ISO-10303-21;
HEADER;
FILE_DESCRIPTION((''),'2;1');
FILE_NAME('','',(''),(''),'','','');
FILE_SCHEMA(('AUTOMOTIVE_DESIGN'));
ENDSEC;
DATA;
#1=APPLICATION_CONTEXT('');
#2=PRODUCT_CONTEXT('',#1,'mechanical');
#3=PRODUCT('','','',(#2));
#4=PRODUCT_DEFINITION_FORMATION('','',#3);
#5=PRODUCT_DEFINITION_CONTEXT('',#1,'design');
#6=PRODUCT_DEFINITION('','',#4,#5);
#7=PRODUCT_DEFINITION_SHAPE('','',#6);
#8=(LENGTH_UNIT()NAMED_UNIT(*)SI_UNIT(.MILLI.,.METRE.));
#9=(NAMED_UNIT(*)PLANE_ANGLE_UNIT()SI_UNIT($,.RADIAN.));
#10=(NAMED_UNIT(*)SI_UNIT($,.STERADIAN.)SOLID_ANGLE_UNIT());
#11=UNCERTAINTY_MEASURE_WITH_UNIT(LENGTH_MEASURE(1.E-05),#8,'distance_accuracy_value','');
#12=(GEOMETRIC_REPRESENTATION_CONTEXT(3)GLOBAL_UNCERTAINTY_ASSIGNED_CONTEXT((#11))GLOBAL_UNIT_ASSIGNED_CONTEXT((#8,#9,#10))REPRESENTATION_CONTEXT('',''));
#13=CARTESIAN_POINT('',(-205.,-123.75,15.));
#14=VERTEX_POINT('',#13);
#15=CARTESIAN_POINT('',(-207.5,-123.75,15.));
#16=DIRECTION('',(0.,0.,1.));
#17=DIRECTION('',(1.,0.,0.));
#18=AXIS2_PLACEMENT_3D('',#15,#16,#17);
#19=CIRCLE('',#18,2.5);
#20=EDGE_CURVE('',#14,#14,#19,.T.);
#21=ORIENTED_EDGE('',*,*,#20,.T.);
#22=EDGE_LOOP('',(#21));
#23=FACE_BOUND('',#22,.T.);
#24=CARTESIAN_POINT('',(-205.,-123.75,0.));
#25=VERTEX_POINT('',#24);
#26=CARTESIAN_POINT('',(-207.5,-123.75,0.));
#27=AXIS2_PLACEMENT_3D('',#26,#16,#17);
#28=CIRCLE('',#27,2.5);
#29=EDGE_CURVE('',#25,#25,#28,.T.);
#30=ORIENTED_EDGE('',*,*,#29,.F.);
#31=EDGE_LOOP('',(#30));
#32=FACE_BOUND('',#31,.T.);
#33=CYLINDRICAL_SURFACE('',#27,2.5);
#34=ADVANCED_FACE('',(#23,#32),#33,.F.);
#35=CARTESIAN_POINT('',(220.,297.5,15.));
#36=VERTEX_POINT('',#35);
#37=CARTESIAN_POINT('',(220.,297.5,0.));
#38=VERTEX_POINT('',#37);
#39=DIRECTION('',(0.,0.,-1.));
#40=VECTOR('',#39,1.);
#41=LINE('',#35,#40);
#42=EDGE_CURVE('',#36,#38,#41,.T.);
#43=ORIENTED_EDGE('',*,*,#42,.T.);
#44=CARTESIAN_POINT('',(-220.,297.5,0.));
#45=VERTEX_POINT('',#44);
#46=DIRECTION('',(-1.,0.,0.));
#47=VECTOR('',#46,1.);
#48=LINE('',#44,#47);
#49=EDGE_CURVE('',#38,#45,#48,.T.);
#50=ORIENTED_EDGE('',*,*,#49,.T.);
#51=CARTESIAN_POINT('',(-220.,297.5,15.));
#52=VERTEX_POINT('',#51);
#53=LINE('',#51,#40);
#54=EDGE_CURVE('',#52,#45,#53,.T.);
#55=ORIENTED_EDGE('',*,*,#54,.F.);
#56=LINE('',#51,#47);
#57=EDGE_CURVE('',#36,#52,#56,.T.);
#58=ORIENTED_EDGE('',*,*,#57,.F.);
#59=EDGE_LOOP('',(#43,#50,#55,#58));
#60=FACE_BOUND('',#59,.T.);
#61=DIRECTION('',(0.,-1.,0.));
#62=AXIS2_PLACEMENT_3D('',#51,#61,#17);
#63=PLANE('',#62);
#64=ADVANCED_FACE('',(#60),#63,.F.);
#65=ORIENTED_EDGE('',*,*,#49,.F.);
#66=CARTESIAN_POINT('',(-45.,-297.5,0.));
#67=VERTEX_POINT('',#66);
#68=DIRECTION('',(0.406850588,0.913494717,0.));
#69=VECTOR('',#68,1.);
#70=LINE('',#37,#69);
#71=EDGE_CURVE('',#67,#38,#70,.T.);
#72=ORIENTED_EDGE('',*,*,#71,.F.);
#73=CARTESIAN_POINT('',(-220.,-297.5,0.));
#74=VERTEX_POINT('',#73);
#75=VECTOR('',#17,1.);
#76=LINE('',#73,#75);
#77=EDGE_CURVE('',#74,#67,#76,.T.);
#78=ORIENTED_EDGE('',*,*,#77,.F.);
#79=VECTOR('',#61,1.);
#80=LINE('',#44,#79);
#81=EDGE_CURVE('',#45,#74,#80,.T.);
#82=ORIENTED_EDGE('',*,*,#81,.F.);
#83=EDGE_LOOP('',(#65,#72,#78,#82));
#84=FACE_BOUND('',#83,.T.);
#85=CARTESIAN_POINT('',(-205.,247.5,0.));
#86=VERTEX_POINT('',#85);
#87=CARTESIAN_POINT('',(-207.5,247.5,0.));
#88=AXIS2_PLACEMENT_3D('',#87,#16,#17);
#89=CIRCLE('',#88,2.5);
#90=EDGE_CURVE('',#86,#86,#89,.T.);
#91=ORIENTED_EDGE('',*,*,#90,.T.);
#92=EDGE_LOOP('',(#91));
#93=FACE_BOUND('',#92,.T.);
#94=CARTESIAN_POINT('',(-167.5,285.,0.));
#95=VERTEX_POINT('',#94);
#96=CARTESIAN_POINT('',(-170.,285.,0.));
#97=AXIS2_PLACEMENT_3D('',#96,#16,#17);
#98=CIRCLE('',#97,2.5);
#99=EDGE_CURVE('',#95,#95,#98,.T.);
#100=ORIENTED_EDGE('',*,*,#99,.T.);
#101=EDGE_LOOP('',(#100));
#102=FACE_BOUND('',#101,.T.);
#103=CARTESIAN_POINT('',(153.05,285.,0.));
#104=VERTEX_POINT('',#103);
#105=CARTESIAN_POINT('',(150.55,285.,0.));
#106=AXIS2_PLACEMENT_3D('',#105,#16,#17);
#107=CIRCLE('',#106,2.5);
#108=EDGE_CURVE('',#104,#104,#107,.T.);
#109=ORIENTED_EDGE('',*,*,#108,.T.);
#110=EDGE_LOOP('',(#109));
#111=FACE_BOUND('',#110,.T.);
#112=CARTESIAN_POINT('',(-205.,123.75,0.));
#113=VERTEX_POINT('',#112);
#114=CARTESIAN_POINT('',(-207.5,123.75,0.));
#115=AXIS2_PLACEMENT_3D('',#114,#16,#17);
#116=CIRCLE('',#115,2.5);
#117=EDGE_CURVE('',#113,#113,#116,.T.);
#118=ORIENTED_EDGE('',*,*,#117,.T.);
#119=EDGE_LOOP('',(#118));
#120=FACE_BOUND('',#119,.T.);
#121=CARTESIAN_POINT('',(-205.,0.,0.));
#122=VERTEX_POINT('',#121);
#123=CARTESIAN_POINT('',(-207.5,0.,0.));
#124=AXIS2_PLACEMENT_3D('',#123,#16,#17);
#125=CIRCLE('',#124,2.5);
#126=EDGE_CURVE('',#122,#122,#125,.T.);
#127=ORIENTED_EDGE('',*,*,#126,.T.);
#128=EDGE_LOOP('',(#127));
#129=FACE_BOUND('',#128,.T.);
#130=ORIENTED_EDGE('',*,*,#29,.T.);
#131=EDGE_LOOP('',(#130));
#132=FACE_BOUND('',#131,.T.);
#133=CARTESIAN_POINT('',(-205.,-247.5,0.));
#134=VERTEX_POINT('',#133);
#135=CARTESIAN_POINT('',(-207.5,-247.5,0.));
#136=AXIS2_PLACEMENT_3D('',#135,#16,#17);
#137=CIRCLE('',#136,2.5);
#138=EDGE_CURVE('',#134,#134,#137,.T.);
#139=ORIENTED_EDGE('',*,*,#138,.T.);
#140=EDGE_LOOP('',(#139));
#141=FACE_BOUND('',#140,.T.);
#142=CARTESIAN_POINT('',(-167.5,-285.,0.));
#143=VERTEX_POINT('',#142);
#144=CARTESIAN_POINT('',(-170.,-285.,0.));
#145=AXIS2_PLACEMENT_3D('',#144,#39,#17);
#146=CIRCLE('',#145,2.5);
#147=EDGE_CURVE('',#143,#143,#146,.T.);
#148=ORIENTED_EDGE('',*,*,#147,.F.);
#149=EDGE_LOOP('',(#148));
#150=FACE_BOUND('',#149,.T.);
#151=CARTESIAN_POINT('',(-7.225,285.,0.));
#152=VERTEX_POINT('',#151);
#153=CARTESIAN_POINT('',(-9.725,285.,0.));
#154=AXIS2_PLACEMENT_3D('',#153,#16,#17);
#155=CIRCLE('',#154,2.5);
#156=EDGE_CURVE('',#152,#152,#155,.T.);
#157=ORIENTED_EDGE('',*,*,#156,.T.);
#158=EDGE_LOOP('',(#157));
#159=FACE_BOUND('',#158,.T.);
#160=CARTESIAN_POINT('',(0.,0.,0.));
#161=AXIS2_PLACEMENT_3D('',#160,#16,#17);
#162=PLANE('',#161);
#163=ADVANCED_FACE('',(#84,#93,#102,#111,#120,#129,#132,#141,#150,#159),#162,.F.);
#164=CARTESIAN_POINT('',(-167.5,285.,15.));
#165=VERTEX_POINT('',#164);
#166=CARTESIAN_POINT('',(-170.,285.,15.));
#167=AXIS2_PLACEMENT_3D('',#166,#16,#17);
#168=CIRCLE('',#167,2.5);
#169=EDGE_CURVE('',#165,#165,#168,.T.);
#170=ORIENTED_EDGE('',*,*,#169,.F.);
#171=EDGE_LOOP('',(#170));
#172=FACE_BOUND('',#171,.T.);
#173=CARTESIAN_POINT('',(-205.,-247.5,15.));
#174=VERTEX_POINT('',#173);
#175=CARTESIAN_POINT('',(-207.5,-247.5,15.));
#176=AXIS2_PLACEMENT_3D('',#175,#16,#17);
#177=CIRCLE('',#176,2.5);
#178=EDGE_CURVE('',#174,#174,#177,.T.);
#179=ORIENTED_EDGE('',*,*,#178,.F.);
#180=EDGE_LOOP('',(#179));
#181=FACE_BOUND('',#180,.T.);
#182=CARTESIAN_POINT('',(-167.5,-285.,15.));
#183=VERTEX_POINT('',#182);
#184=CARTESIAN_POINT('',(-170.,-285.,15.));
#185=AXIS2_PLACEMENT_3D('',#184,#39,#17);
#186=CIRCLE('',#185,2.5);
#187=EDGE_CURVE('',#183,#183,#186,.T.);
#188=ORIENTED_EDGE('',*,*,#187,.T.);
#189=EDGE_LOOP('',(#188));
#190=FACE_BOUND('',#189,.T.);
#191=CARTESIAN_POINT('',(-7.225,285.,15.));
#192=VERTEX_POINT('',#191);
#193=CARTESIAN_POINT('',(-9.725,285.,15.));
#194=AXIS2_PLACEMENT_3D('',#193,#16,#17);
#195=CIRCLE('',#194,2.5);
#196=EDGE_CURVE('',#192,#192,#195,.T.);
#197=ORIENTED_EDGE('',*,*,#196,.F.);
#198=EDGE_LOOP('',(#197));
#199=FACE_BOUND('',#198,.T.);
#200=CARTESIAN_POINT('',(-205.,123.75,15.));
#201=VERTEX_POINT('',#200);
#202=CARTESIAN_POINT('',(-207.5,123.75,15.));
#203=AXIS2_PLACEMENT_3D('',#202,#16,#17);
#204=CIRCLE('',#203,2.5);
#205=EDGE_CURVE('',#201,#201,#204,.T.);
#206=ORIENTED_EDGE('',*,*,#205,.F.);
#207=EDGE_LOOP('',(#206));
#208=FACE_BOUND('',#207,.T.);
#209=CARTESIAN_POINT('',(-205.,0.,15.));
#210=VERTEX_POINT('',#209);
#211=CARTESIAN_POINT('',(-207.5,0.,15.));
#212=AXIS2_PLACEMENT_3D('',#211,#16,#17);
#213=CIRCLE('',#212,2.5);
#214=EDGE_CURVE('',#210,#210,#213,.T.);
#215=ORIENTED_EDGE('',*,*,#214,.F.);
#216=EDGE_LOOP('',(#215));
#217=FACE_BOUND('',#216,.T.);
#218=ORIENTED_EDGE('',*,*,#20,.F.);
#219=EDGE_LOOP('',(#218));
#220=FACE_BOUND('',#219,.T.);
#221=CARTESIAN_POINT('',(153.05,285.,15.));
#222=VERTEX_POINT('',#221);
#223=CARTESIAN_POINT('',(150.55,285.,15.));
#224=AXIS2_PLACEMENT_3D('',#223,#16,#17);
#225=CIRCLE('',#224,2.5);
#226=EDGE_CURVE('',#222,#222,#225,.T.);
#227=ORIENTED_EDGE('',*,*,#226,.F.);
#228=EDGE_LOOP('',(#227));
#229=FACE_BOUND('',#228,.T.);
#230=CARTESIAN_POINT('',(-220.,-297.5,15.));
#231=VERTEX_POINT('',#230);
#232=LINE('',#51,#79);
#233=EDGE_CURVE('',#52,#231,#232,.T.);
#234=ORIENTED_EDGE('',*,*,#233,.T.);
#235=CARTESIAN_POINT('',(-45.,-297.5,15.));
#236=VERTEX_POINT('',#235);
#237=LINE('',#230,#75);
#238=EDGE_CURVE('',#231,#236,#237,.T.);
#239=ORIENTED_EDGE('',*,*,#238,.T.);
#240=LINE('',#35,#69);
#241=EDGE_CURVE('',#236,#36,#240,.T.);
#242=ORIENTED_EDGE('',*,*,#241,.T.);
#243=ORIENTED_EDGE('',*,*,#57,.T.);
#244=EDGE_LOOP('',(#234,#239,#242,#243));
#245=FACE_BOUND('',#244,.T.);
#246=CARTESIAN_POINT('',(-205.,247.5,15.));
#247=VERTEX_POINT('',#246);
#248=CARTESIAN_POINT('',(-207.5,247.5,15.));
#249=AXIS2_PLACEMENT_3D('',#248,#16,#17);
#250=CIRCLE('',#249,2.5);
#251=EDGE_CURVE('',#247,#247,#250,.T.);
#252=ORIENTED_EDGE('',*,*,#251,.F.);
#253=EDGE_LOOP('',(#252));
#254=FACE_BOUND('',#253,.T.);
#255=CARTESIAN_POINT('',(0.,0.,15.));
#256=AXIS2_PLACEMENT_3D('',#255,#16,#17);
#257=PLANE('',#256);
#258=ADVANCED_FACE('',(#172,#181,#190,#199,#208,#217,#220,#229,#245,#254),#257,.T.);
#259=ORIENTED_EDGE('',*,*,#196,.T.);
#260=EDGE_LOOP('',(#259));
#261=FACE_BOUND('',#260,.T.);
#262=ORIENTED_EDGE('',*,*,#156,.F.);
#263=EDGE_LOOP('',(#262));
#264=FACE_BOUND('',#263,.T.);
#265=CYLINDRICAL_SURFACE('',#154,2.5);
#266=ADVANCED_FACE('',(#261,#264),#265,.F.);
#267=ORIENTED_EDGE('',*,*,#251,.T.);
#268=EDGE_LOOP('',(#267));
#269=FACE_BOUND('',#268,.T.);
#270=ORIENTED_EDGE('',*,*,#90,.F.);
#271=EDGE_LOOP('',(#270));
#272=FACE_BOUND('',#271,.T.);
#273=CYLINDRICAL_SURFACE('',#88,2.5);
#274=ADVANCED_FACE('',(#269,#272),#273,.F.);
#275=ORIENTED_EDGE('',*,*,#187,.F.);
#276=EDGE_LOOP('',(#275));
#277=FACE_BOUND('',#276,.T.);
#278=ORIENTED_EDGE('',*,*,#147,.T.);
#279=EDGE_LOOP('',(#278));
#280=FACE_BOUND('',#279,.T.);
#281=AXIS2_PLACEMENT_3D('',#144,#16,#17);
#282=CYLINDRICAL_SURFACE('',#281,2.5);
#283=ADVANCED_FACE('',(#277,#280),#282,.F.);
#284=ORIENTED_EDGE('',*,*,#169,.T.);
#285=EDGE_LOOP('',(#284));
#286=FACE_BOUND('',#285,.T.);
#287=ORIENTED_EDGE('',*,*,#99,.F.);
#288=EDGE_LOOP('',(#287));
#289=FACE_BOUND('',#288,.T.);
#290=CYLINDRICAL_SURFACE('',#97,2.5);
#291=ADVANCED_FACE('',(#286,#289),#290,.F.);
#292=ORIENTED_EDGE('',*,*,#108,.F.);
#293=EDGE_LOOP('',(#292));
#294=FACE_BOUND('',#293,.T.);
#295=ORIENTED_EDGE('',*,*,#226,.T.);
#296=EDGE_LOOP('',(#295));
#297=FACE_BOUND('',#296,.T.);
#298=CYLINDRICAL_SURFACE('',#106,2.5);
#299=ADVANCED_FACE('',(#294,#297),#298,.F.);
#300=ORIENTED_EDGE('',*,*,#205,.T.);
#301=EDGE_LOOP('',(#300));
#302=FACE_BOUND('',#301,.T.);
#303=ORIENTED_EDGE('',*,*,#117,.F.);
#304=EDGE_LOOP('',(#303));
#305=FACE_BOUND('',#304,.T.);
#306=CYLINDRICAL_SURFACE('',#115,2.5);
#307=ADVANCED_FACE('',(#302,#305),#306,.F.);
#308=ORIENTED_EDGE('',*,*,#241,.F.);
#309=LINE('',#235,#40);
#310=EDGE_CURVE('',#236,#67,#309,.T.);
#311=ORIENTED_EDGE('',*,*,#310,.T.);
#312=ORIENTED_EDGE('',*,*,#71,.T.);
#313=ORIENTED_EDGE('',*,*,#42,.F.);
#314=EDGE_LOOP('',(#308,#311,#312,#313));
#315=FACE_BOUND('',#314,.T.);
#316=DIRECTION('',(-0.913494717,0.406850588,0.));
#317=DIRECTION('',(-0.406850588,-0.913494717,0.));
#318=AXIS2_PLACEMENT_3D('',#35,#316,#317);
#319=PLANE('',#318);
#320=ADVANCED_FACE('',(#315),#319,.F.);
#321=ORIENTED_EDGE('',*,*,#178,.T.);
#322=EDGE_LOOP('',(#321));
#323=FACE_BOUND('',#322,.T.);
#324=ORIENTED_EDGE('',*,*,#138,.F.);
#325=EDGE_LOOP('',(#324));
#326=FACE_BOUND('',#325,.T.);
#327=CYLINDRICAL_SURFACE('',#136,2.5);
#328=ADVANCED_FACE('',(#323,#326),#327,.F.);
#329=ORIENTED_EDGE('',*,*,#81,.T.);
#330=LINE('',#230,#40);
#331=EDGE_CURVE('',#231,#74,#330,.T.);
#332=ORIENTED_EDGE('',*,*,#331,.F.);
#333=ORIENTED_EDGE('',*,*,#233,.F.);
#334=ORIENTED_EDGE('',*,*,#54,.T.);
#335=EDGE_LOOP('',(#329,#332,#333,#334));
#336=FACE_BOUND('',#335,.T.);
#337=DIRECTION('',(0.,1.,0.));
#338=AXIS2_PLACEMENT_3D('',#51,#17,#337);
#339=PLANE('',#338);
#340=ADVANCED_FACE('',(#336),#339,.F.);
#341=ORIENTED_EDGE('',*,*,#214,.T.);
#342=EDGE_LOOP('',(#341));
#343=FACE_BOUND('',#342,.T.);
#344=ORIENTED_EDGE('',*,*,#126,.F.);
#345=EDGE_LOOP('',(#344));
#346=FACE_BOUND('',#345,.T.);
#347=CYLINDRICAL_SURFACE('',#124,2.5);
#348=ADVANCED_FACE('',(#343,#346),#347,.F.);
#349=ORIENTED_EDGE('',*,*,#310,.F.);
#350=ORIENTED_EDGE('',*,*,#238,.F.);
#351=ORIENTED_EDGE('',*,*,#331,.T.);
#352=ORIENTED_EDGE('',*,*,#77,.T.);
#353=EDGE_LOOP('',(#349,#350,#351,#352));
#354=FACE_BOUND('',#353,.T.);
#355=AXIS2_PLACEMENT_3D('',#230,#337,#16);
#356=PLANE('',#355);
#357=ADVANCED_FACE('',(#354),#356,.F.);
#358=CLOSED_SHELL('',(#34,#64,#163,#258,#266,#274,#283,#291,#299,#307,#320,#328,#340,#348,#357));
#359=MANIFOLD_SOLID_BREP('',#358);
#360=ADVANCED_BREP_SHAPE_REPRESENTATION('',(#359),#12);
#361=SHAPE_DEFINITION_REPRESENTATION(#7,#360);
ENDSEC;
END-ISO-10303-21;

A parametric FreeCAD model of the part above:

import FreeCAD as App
import Part
import Sketcher

V = App.Vector

doc = App.newDocument("Part")
body = doc.addObject("PartDesign::Body", "Body")

# Sketch on XY plane
sketch1 = doc.addObject("Sketcher::SketchObject", "Sketch")
body.addObject(sketch1)
sketch1.AttachmentSupport = (doc.XY_Plane, [""])
sketch1.MapMode = "FlatFace"
sketch1.addGeometry([
    Part.LineSegment(V(220, 298, 0), V(-220, 298, 0)),
    Part.LineSegment(V(-220, 298, 0), V(-220, -298, 0)),
    Part.LineSegment(V(-220, -298, 0), V(-45, -298, 0)),
    Part.LineSegment(V(-45, -298, 0), V(220, 298, 0)),
], False)
sketch1.addConstraint([
    Sketcher.Constraint("Coincident", 0, 2, 1, 1),
    Sketcher.Constraint("Coincident", 1, 2, 2, 1),
    Sketcher.Constraint("Coincident", 2, 2, 3, 1),
    Sketcher.Constraint("Coincident", 3, 2, 0, 1),
    Sketcher.Constraint("Horizontal", 0),
    Sketcher.Constraint("Vertical", 1),
    Sketcher.Constraint("Horizontal", 2),
    Sketcher.Constraint("Symmetric", 1, 2, 3, 2, -1, 1),
    Sketcher.Constraint("DistanceX", 0, 2, 0, 1, 440.0),
    Sketcher.Constraint("DistanceX", 2, 1, 2, 2, 175.0),
    Sketcher.Constraint("DistanceY", 1, 2, 1, 1, 595.0),
])
pad1 = doc.addObject("PartDesign::Pad", "Pad")
body.addObject(pad1)
pad1.Profile = sketch1
pad1.Length = 15

# Sketch on XY plane
sketch2 = doc.addObject("Sketcher::SketchObject", "Sketch001")
body.addObject(sketch2)
sketch2.AttachmentSupport = (doc.XY_Plane, [""])
sketch2.MapMode = "FlatFace"
sketch2.AttachmentOffset = App.Placement(V(0, 0, 15), App.Rotation())
sketch2.addGeometry([
    Part.Circle(V(-170, 285, 0), V(0, 0, 1), 2.5),
    Part.Circle(V(-9.7, 285, 0), V(0, 0, 1), 2.5),
    Part.Circle(V(150.6, 285, 0), V(0, 0, 1), 2.5),
], False)
sketch2.addConstraint([
    Sketcher.Constraint("Equal", 0, 1),
    Sketcher.Constraint("Equal", 1, 2),
    Sketcher.Constraint("Horizontal", 0, 3, 1, 3),
    Sketcher.Constraint("Horizontal", 1, 3, 2, 3),
    Sketcher.Constraint("Diameter", 0, 5.0),
    Sketcher.Constraint("DistanceX", 0, 3, -1, 1, 170.0),
    Sketcher.Constraint("DistanceY", -1, 1, 0, 3, 285.0),
    Sketcher.Constraint("DistanceX", -1, 1, 2, 3, 150.55),
    Sketcher.Constraint("DistanceX", 1, 3, -1, 1, 9.725),
])
pocket1 = doc.addObject("PartDesign::Pocket", "Pocket")
body.addObject(pocket1)
pocket1.Profile = sketch2
pocket1.Type = "ThroughAll"

# Sketch on XY plane
sketch3 = doc.addObject("Sketcher::SketchObject", "Sketch002")
body.addObject(sketch3)
sketch3.AttachmentSupport = (doc.XY_Plane, [""])
sketch3.MapMode = "FlatFace"
sketch3.AttachmentOffset = App.Placement(V(0, 0, 15), App.Rotation())
sketch3.addGeometry([
    Part.Circle(V(-207.5, 247.5, 0), V(0, 0, 1), 2.5),  # 0
    Part.Circle(V(-207.5, 123.8, 0), V(0, 0, 1), 2.5),  # 1
    Part.Circle(V(-207.5, 0, 0), V(0, 0, 1), 2.5),  # 2
    Part.Circle(V(-207.5, -123.8, 0), V(0, 0, 1), 2.5),  # 3
    Part.Circle(V(-207.5, -247.5, 0), V(0, 0, 1), 2.5),  # 4
], False)
sketch3.addConstraint([
    Sketcher.Constraint("Equal", 0, 1),
    Sketcher.Constraint("Equal", 1, 2),
    Sketcher.Constraint("Equal", 2, 3),
    Sketcher.Constraint("Equal", 3, 4),
    Sketcher.Constraint("Symmetric", 1, 3, 3, 3, -1),
    Sketcher.Constraint("Symmetric", 0, 3, 4, 3, -1),
    Sketcher.Constraint("PointOnObject", 2, 3, -1),
    Sketcher.Constraint("Vertical", 0, 3, 1, 3),
    Sketcher.Constraint("Vertical", 1, 3, 2, 3),
    Sketcher.Constraint("Diameter", 0, 5.0),
    Sketcher.Constraint("DistanceY", 4, 3, 0, 3, 495.0),
    Sketcher.Constraint("DistanceX", 0, 3, -1, 1, 207.5),
    Sketcher.Constraint("DistanceY", 3, 3, 1, 3, 247.5),
])
pocket2 = doc.addObject("PartDesign::Pocket", "Pocket001")
body.addObject(pocket2)
pocket2.Profile = sketch3
pocket2.Type = "ThroughAll"
doc.recompute()

mirrored = doc.addObject("PartDesign::Mirrored", "Mirrored")
body.addObject(mirrored)
mirrored.Originals = [pocket1]
mirrored.MirrorPlane = (doc.XZ_Plane, [""])
body.Tip = mirrored

doc.recompute()
